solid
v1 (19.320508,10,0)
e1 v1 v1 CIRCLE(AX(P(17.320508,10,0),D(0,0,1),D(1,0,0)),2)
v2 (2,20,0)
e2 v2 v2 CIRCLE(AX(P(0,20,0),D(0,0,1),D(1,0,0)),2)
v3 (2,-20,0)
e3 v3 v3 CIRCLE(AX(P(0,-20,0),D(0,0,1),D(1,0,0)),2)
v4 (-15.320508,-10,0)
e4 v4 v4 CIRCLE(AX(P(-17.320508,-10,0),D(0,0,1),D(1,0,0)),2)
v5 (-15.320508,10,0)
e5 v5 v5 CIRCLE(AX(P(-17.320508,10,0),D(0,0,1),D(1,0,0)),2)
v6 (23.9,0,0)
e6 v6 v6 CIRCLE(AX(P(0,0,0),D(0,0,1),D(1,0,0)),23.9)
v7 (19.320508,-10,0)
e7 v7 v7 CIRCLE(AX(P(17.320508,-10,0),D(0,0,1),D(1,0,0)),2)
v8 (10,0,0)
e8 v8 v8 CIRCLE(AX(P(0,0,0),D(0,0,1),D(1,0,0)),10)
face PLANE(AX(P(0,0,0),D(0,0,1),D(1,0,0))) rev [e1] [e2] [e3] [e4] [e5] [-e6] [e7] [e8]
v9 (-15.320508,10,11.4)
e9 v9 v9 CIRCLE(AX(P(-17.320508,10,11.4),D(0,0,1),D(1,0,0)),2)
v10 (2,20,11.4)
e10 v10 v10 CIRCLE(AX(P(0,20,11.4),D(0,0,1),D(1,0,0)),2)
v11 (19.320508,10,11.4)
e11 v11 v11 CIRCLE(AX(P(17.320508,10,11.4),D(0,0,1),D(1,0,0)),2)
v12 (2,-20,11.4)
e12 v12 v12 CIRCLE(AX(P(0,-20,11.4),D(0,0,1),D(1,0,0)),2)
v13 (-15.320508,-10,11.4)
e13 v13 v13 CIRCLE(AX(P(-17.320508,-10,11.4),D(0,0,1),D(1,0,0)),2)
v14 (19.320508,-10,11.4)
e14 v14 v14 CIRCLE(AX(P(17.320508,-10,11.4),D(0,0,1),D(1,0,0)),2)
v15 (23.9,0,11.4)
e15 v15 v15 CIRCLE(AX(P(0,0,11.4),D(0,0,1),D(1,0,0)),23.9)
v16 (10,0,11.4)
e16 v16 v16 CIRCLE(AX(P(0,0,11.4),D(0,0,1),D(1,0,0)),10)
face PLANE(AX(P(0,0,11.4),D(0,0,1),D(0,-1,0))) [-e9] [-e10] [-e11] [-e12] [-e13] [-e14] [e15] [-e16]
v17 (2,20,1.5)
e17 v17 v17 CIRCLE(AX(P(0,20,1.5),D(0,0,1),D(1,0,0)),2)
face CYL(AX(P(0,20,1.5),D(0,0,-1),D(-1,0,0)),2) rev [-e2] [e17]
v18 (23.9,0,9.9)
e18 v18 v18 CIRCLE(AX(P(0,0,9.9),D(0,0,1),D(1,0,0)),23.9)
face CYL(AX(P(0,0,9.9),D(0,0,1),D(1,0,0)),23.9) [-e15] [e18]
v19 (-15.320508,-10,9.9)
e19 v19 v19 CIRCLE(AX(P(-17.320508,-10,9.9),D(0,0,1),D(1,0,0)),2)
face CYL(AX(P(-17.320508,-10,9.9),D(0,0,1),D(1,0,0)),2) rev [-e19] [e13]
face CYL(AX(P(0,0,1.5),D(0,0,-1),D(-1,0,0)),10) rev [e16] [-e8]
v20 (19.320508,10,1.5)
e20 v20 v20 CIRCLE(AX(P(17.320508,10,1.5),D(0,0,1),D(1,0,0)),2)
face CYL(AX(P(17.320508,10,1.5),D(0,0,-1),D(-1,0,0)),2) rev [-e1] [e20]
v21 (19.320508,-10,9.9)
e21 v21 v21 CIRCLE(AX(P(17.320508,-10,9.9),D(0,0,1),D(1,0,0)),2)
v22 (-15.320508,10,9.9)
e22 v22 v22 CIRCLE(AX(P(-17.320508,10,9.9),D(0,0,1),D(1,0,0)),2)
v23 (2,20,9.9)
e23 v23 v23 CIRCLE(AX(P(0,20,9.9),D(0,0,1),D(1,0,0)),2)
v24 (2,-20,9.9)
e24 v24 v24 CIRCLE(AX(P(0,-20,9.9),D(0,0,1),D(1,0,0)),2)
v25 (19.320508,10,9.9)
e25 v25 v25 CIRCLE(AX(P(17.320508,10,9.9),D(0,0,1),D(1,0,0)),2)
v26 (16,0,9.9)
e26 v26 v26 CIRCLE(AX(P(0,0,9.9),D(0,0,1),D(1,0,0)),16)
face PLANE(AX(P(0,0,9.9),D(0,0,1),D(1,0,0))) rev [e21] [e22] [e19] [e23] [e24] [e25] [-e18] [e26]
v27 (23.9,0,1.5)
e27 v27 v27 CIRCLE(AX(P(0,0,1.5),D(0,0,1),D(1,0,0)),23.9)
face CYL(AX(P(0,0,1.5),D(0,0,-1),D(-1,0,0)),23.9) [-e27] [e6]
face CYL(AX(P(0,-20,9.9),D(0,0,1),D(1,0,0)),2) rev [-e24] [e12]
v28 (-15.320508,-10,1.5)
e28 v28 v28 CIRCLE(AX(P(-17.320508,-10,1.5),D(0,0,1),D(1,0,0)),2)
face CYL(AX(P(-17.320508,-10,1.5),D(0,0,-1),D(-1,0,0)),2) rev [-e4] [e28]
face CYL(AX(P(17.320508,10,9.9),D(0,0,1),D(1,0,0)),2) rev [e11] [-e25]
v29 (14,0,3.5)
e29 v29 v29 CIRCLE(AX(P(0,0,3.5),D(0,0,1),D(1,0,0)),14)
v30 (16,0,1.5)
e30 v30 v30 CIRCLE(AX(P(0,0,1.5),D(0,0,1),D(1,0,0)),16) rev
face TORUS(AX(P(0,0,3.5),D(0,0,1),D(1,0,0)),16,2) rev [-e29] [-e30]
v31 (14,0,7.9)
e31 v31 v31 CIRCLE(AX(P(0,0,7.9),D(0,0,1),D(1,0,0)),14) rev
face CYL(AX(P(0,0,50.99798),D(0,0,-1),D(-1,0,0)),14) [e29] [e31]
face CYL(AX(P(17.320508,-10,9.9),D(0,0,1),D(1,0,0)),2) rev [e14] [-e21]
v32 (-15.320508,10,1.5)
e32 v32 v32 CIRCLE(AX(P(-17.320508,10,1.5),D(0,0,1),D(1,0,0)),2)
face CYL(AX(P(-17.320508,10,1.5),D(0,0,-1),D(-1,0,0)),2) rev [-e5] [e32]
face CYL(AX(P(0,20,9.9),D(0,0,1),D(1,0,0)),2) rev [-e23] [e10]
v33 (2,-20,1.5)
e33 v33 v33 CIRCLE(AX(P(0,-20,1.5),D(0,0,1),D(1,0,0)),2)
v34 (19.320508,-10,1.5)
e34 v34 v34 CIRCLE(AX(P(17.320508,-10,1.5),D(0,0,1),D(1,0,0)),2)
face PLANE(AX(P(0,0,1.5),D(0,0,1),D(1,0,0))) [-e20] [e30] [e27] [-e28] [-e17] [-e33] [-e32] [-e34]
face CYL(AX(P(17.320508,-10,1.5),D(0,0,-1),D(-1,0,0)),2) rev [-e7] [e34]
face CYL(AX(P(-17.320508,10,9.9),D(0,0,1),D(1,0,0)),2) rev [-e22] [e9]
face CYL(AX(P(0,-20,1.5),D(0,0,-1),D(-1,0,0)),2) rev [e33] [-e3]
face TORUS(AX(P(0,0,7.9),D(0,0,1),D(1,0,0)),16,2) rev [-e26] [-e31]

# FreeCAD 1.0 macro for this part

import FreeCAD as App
import Part
import Sketcher


def edges_at(feature, points):
    """Names of the edges that pass closest to the given points."""
    edges = feature.Shape.Edges
    near = lambda p: min(range(len(edges)), key=lambda i: edges[i].distToShape(Part.Vertex(*p))[0])
    return sorted({f"Edge{near(p) + 1}" for p in points})

doc = App.newDocument("Part")
body = doc.addObject("PartDesign::Body", "Body")

sketch1 = body.newObject("Sketcher::SketchObject", "Sketch")
sketch1.AttachmentSupport = (doc.getObject("XY_Plane"), [""])
sketch1.MapMode = "FlatFace"
sketch1.addGeometry(Part.Circle(App.Vector(0, 0, 0), App.Vector(0, 0, 1), 23.9), False)
sketch1.addGeometry(Part.Circle(App.Vector(-17.3, -10, 0), App.Vector(0, 0, 1), 2), False)
sketch1.addGeometry(Part.Circle(App.Vector(0, -20, 0), App.Vector(0, 0, 1), 2), False)
sketch1.addGeometry(Part.Circle(App.Vector(17.3, -10, 0), App.Vector(0, 0, 1), 2), False)
sketch1.addGeometry(Part.Circle(App.Vector(-17.3, 10, 0), App.Vector(0, 0, 1), 2), False)
sketch1.addGeometry(Part.Circle(App.Vector(0, 0, 0), App.Vector(0, 0, 1), 10), False)
sketch1.addGeometry(Part.Circle(App.Vector(17.3, 10, 0), App.Vector(0, 0, 1), 2), False)
sketch1.addGeometry(Part.Circle(App.Vector(0, 20, 0), App.Vector(0, 0, 1), 2), False)
sketch1.addConstraint(Sketcher.Constraint("Coincident", 0, 3, -1, 1))
sketch1.addConstraint(Sketcher.Constraint("Coincident", 5, 3, -1, 1))
sketch1.addConstraint(Sketcher.Constraint("Equal", 1, 2))
sketch1.addConstraint(Sketcher.Constraint("Equal", 2, 3))
sketch1.addConstraint(Sketcher.Constraint("Equal", 3, 4))
sketch1.addConstraint(Sketcher.Constraint("Equal", 4, 6))
sketch1.addConstraint(Sketcher.Constraint("Equal", 6, 7))
sketch1.addConstraint(Sketcher.Constraint("Symmetric", 3, 3, 4, 3, -1, 1))
sketch1.addConstraint(Sketcher.Constraint("Symmetric", 1, 3, 6, 3, -1, 1))
sketch1.addConstraint(Sketcher.Constraint("Symmetric", 2, 3, 7, 3, -1, 1))
sketch1.addConstraint(Sketcher.Constraint("Symmetric", 1, 3, 3, 3, -2))
sketch1.addConstraint(Sketcher.Constraint("PointOnObject", 2, 3, -2))
sketch1.addConstraint(Sketcher.Constraint("Diameter", 1, 4.0))
sketch1.addConstraint(Sketcher.Constraint("Diameter", 5, 20.0))
sketch1.addConstraint(Sketcher.Constraint("Diameter", 0, 47.8))
sketch1.addConstraint(Sketcher.Constraint("DistanceY", 1, 3, -1, 1, 10.0))
sketch1.addConstraint(Sketcher.Constraint("DistanceY", 2, 3, -1, 1, 20.0))
sketch1.addConstraint(Sketcher.Constraint("DistanceX", 1, 3, -1, 1, 17.320508))
pad1 = body.newObject("PartDesign::Pad", "Pad")
pad1.Profile = sketch1
pad1.Length = 1.5

sketch2 = body.newObject("Sketcher::SketchObject", "Sketch001")
sketch2.AttachmentSupport = (doc.getObject("XY_Plane"), [""])
sketch2.MapMode = "FlatFace"
sketch2.AttachmentOffset = App.Placement(App.Vector(0, 0, 1.5), App.Rotation())
sketch2.addGeometry(Part.Circle(App.Vector(0, 0, 0), App.Vector(0, 0, 1), 14), False)
sketch2.addGeometry(Part.Circle(App.Vector(0, 0, 0), App.Vector(0, 0, 1), 10), False)
sketch2.addConstraint(Sketcher.Constraint("Coincident", 0, 3, -1, 1))
sketch2.addConstraint(Sketcher.Constraint("Coincident", 1, 3, -1, 1))
sketch2.addConstraint(Sketcher.Constraint("Diameter", 0, 28.0))
sketch2.addConstraint(Sketcher.Constraint("Diameter", 1, 20.0))
pad2 = body.newObject("PartDesign::Pad", "Pad001")
pad2.Profile = sketch2
pad2.Length = 9.9

sketch3 = body.newObject("Sketcher::SketchObject", "Sketch002")
sketch3.AttachmentSupport = (doc.getObject("XY_Plane"), [""])
sketch3.MapMode = "FlatFace"
sketch3.AttachmentOffset = App.Placement(App.Vector(0, 0, 9.9), App.Rotation())
sketch3.addGeometry(Part.Circle(App.Vector(0, 0, 0), App.Vector(0, 0, 1), 23.9), False)
sketch3.addGeometry(Part.Circle(App.Vector(-17.3, -10, 0), App.Vector(0, 0, 1), 2), False)
sketch3.addGeometry(Part.Circle(App.Vector(0, -20, 0), App.Vector(0, 0, 1), 2), False)
sketch3.addGeometry(Part.Circle(App.Vector(17.3, -10, 0), App.Vector(0, 0, 1), 2), False)
sketch3.addGeometry(Part.Circle(App.Vector(-17.3, 10, 0), App.Vector(0, 0, 1), 2), False)
sketch3.addGeometry(Part.Circle(App.Vector(0, 0, 0), App.Vector(0, 0, 1), 10), False)
sketch3.addGeometry(Part.Circle(App.Vector(17.3, 10, 0), App.Vector(0, 0, 1), 2), False)
sketch3.addGeometry(Part.Circle(App.Vector(0, 20, 0), App.Vector(0, 0, 1), 2), False)
sketch3.addConstraint(Sketcher.Constraint("Coincident", 0, 3, -1, 1))
sketch3.addConstraint(Sketcher.Constraint("Coincident", 5, 3, -1, 1))
sketch3.addConstraint(Sketcher.Constraint("Equal", 1, 2))
sketch3.addConstraint(Sketcher.Constraint("Equal", 2, 3))
sketch3.addConstraint(Sketcher.Constraint("Equal", 3, 4))
sketch3.addConstraint(Sketcher.Constraint("Equal", 4, 6))
sketch3.addConstraint(Sketcher.Constraint("Equal", 6, 7))
sketch3.addConstraint(Sketcher.Constraint("Symmetric", 3, 3, 4, 3, -1, 1))
sketch3.addConstraint(Sketcher.Constraint("Symmetric", 1, 3, 6, 3, -1, 1))
sketch3.addConstraint(Sketcher.Constraint("Symmetric", 2, 3, 7, 3, -1, 1))
sketch3.addConstraint(Sketcher.Constraint("Symmetric", 1, 3, 3, 3, -2))
sketch3.addConstraint(Sketcher.Constraint("PointOnObject", 2, 3, -2))
sketch3.addConstraint(Sketcher.Constraint("Diameter", 1, 4.0))
sketch3.addConstraint(Sketcher.Constraint("Diameter", 5, 20.0))
sketch3.addConstraint(Sketcher.Constraint("Diameter", 0, 47.8))
sketch3.addConstraint(Sketcher.Constraint("DistanceY", 1, 3, -1, 1, 10.0))
sketch3.addConstraint(Sketcher.Constraint("DistanceY", 2, 3, -1, 1, 20.0))
sketch3.addConstraint(Sketcher.Constraint("DistanceX", 1, 3, -1, 1, 17.320508))
pad3 = body.newObject("PartDesign::Pad", "Pad002")
pad3.Profile = sketch3
pad3.Length = 1.5
doc.recompute()

fillet = body.newObject("PartDesign::Fillet", "Fillet")
fillet.Base = (pad3, edges_at(pad3, [(-14, 0, 1.5), (-14, 0, 9.9)]))
fillet.Radius = 2

doc.recompute()
